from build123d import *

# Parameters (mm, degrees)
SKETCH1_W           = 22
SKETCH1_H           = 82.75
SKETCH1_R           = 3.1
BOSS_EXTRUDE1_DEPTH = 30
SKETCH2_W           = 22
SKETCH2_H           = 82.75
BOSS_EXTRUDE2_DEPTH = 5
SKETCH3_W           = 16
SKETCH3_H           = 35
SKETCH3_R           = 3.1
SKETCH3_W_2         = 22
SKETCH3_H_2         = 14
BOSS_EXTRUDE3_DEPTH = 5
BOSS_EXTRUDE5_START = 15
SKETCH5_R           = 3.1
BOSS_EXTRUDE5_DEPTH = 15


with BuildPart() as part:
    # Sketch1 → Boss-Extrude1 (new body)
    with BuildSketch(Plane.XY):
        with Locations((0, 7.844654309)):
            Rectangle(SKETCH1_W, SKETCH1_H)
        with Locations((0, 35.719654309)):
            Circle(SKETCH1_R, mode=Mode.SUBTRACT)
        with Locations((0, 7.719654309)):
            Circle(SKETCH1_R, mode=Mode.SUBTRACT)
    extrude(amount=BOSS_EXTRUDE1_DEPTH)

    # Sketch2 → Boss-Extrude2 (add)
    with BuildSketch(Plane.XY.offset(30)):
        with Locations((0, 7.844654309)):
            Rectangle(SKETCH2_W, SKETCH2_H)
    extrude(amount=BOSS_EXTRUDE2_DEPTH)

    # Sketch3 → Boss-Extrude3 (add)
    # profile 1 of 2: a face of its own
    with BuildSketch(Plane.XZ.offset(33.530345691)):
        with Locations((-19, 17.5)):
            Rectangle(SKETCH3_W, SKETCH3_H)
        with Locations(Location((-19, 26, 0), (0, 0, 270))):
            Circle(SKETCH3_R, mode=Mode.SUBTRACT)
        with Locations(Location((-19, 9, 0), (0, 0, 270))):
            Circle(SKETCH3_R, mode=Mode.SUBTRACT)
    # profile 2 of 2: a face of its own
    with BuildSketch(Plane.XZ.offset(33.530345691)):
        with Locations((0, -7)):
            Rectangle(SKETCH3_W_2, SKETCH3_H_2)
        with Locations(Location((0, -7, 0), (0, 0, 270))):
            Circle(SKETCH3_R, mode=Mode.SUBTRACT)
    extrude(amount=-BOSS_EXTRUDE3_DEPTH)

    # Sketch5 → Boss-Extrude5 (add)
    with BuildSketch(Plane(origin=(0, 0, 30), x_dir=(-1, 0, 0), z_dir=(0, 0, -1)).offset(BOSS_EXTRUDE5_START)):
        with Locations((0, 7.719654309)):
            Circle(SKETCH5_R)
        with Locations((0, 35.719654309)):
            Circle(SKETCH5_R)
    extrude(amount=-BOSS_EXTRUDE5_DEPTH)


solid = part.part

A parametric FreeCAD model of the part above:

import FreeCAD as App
import Part
import Sketcher

doc = App.newDocument("Part")
body = doc.addObject("PartDesign::Body", "Body")

sketch1 = body.newObject("Sketcher::SketchObject", "Sketch")
sketch1.AttachmentSupport = (doc.getObject("XY_Plane"), [""])
sketch1.MapMode = "FlatFace"
sketch1.addGeometry(Part.LineSegment(App.Vector(-11, 49.2, 0), App.Vector(-11, -33.5, 0)), False)
sketch1.addGeometry(Part.LineSegment(App.Vector(-11, -33.5, 0), App.Vector(11, -33.5, 0)), False)
sketch1.addGeometry(Part.LineSegment(App.Vector(11, -33.5, 0), App.Vector(11, 49.2, 0)), False)
sketch1.addGeometry(Part.LineSegment(App.Vector(11, 49.2, 0), App.Vector(-11, 49.2, 0)), False)
sketch1.addGeometry(Part.Circle(App.Vector(0, 7.7, 0), App.Vector(0, 0, 1), 3.1), False)
sketch1.addGeometry(Part.Circle(App.Vector(0, 35.7, 0), App.Vector(0, 0, 1), 3.1), False)
sketch1.addConstraint(Sketcher.Constraint("Coincident", 0, 2, 1, 1))
sketch1.addConstraint(Sketcher.Constraint("Coincident", 1, 2, 2, 1))
sketch1.addConstraint(Sketcher.Constraint("Coincident", 2, 2, 3, 1))
sketch1.addConstraint(Sketcher.Constraint("Coincident", 3, 2, 0, 1))
sketch1.addConstraint(Sketcher.Constraint("Vertical", 0))
sketch1.addConstraint(Sketcher.Constraint("Horizontal", 1))
sketch1.addConstraint(Sketcher.Constraint("Vertical", 2))
sketch1.addConstraint(Sketcher.Constraint("Horizontal", 3))
sketch1.addConstraint(Sketcher.Constraint("Equal", 4, 5))
sketch1.addConstraint(Sketcher.Constraint("PointOnObject", 4, 3, -2))
sketch1.addConstraint(Sketcher.Constraint("PointOnObject", 5, 3, -2))
sketch1.addConstraint(Sketcher.Constraint("Diameter", 4, 6.2))
sketch1.addConstraint(Sketcher.Constraint("DistanceX", 1, 1, 1, 2, 22.0))
sketch1.addConstraint(Sketcher.Constraint("DistanceX", 0, 2, -1, 1, 11.0))
sketch1.addConstraint(Sketcher.Constraint("DistanceY", 4, 3, 5, 3, 28.0))
sketch1.addConstraint(Sketcher.Constraint("DistanceY", 0, 2, 0, 1, 82.75))
sketch1.addConstraint(Sketcher.Constraint("DistanceY", 5, 3, 2, 2, 13.5))
sketch1.addConstraint(Sketcher.Constraint("DistanceY", -1, 1, 4, 3, 7.719654))
pad1 = body.newObject("PartDesign::Pad", "Pad")
pad1.Profile = sketch1
pad1.Length = 30

sketch2 = body.newObject("Sketcher::SketchObject", "Sketch001")
sketch2.AttachmentSupport = (doc.getObject("XY_Plane"), [""])
sketch2.MapMode = "FlatFace"
sketch2.AttachmentOffset = App.Placement(App.Vector(0, 0, 30), App.Rotation())
sketch2.addGeometry(Part.LineSegment(App.Vector(-11, 49, 0), App.Vector(-11, -34, 0)), False)
sketch2.addGeometry(Part.LineSegment(App.Vector(-11, -34, 0), App.Vector(11, -34, 0)), False)
sketch2.addGeometry(Part.LineSegment(App.Vector(11, -34, 0), App.Vector(11, 49, 0)), False)
sketch2.addGeometry(Part.LineSegment(App.Vector(11, 49, 0), App.Vector(-11, 49, 0)), False)
sketch2.addConstraint(Sketcher.Constraint("Coincident", 0, 2, 1, 1))
sketch2.addConstraint(Sketcher.Constraint("Coincident", 1, 2, 2, 1))
sketch2.addConstraint(Sketcher.Constraint("Coincident", 2, 2, 3, 1))
sketch2.addConstraint(Sketcher.Constraint("Coincident", 3, 2, 0, 1))
sketch2.addConstraint(Sketcher.Constraint("Vertical", 0))
sketch2.addConstraint(Sketcher.Constraint("Horizontal", 1))
sketch2.addConstraint(Sketcher.Constraint("Vertical", 2))
sketch2.addConstraint(Sketcher.Constraint("Horizontal", 3))
sketch2.addConstraint(Sketcher.Constraint("DistanceX", 1, 1, 1, 2, 22.0))
sketch2.addConstraint(Sketcher.Constraint("DistanceX", 0, 2, -1, 1, 11.0))
sketch2.addConstraint(Sketcher.Constraint("DistanceY", 0, 2, 0, 1, 82.75))
sketch2.addConstraint(Sketcher.Constraint("DistanceY", 0, 2, -1, 1, 33.530346))
pad2 = body.newObject("PartDesign::Pad", "Pad001")
pad2.Profile = sketch2
pad2.Length = 5

sketch3 = body.newObject("Sketcher::SketchObject", "Sketch002")
sketch3.AttachmentSupport = (doc.getObject("XZ_Plane"), [""])
sketch3.MapMode = "FlatFace"
sketch3.AttachmentOffset = App.Placement(App.Vector(0, 0, 33.530346), App.Rotation())
sketch3.addGeometry(Part.LineSegment(App.Vector(-27, 35, 0), App.Vector(-27, 0, 0)), False)
sketch3.addGeometry(Part.LineSegment(App.Vector(-27, 0, 0), App.Vector(-11, 0, 0)), False)
sketch3.addGeometry(Part.LineSegment(App.Vector(-11, 0, 0), App.Vector(-11, 35, 0)), False)
sketch3.addGeometry(Part.LineSegment(App.Vector(-11, 35, 0), App.Vector(-27, 35, 0)), False)
sketch3.addGeometry(Part.Circle(App.Vector(-19, 9, 0), App.Vector(0, 0, 1), 3.1), False)
sketch3.addGeometry(Part.Circle(App.Vector(-19, 26, 0), App.Vector(0, 0, 1), 3.1), False)
sketch3.addGeometry(Part.LineSegment(App.Vector(-11, 0, 0), App.Vector(-11, -14, 0)), False)
sketch3.addGeometry(Part.LineSegment(App.Vector(-11, -14, 0), App.Vector(11, -14, 0)), False)
sketch3.addGeometry(Part.LineSegment(App.Vector(11, -14, 0), App.Vector(11, 0, 0)), False)
sketch3.addGeometry(Part.LineSegment(App.Vector(11, 0, 0), App.Vector(-11, 0, 0)), False)
sketch3.addGeometry(Part.Circle(App.Vector(0, -7, 0), App.Vector(0, 0, 1), 3.1), False)
sketch3.addConstraint(Sketcher.Constraint("Coincident", 0, 2, 1, 1))
sketch3.addConstraint(Sketcher.Constraint("Coincident", 1, 2, 2, 1))
sketch3.addConstraint(Sketcher.Constraint("Coincident", 2, 2, 3, 1))
sketch3.addConstraint(Sketcher.Constraint("Coincident", 3, 2, 0, 1))
sketch3.addConstraint(Sketcher.Constraint("Coincident", 6, 2, 7, 1))
sketch3.addConstraint(Sketcher.Constraint("Coincident", 7, 2, 8, 1))
sketch3.addConstraint(Sketcher.Constraint("Coincident", 8, 2, 9, 1))
sketch3.addConstraint(Sketcher.Constraint("Coincident", 9, 2, 6, 1))
sketch3.addConstraint(Sketcher.Constraint("Vertical", 0))
sketch3.addConstraint(Sketcher.Constraint("Horizontal", 1))
sketch3.addConstraint(Sketcher.Constraint("Vertical", 2))
sketch3.addConstraint(Sketcher.Constraint("Horizontal", 3))
sketch3.addConstraint(Sketcher.Constraint("Vertical", 6))
sketch3.addConstraint(Sketcher.Constraint("Horizontal", 7))
sketch3.addConstraint(Sketcher.Constraint("Vertical", 8))
sketch3.addConstraint(Sketcher.Constraint("Horizontal", 9))
sketch3.addConstraint(Sketcher.Constraint("Coincident", 9, 2, 1, 2))
sketch3.addConstraint(Sketcher.Constraint("Equal", 4, 5))
sketch3.addConstraint(Sketcher.Constraint("Equal", 5, 10))
sketch3.addConstraint(Sketcher.Constraint("Symmetric", 1, 2, 8, 2, -1, 1))
sketch3.addConstraint(Sketcher.Constraint("PointOnObject", 10, 3, -2))
sketch3.addConstraint(Sketcher.Constraint("Vertical", 4, 3, 5, 3))
sketch3.addConstraint(Sketcher.Constraint("Diameter", 4, 6.2))
sketch3.addConstraint(Sketcher.Constraint("DistanceX", 1, 1, 1, 2, 16.0))
sketch3.addConstraint(Sketcher.Constraint("DistanceX", 7, 1, 7, 2, 22.0))
sketch3.addConstraint(Sketcher.Constraint("DistanceY", 0, 2, 0, 1, 35.0))
sketch3.addConstraint(Sketcher.Constraint("DistanceY", 6, 2, 6, 1, 14.0))
sketch3.addConstraint(Sketcher.Constraint("DistanceX", 4, 3, -1, 1, 19.0))
sketch3.addConstraint(Sketcher.Constraint("DistanceY", -1, 1, 4, 3, 9.0))
sketch3.addConstraint(Sketcher.Constraint("DistanceY", -1, 1, 5, 3, 26.0))
sketch3.addConstraint(Sketcher.Constraint("DistanceY", 10, 3, -1, 1, 7.0))
pad3 = body.newObject("PartDesign::Pad", "Pad002")
pad3.Profile = sketch3
pad3.Length = 5
pad3.Reversed = True

sketch4 = body.newObject("Sketcher::SketchObject", "Sketch003")
sketch4.AttachmentSupport = (doc.getObject("XY_Plane"), [""])
sketch4.MapMode = "FlatFace"
sketch4.AttachmentOffset = App.Placement(App.Vector(0, 0, 15), App.Rotation())
sketch4.addGeometry(Part.Circle(App.Vector(0, 7.7, 0), App.Vector(0, 0, 1), 3.1), False)
sketch4.addGeometry(Part.Circle(App.Vector(0, 35.7, 0), App.Vector(0, 0, 1), 3.1), False)
sketch4.addConstraint(Sketcher.Constraint("Equal", 0, 1))
sketch4.addConstraint(Sketcher.Constraint("PointOnObject", 0, 3, -2))
sketch4.addConstraint(Sketcher.Constraint("PointOnObject", 1, 3, -2))
sketch4.addConstraint(Sketcher.Constraint("Diameter", 0, 6.2))
sketch4.addConstraint(Sketcher.Constraint("DistanceY", 0, 3, 1, 3, 28.0))
sketch4.addConstraint(Sketcher.Constraint("DistanceY", -1, 1, 0, 3, 7.719654))
pad4 = body.newObject("PartDesign::Pad", "Pad003")
pad4.Profile = sketch4
pad4.Length = 15

doc.recompute()
